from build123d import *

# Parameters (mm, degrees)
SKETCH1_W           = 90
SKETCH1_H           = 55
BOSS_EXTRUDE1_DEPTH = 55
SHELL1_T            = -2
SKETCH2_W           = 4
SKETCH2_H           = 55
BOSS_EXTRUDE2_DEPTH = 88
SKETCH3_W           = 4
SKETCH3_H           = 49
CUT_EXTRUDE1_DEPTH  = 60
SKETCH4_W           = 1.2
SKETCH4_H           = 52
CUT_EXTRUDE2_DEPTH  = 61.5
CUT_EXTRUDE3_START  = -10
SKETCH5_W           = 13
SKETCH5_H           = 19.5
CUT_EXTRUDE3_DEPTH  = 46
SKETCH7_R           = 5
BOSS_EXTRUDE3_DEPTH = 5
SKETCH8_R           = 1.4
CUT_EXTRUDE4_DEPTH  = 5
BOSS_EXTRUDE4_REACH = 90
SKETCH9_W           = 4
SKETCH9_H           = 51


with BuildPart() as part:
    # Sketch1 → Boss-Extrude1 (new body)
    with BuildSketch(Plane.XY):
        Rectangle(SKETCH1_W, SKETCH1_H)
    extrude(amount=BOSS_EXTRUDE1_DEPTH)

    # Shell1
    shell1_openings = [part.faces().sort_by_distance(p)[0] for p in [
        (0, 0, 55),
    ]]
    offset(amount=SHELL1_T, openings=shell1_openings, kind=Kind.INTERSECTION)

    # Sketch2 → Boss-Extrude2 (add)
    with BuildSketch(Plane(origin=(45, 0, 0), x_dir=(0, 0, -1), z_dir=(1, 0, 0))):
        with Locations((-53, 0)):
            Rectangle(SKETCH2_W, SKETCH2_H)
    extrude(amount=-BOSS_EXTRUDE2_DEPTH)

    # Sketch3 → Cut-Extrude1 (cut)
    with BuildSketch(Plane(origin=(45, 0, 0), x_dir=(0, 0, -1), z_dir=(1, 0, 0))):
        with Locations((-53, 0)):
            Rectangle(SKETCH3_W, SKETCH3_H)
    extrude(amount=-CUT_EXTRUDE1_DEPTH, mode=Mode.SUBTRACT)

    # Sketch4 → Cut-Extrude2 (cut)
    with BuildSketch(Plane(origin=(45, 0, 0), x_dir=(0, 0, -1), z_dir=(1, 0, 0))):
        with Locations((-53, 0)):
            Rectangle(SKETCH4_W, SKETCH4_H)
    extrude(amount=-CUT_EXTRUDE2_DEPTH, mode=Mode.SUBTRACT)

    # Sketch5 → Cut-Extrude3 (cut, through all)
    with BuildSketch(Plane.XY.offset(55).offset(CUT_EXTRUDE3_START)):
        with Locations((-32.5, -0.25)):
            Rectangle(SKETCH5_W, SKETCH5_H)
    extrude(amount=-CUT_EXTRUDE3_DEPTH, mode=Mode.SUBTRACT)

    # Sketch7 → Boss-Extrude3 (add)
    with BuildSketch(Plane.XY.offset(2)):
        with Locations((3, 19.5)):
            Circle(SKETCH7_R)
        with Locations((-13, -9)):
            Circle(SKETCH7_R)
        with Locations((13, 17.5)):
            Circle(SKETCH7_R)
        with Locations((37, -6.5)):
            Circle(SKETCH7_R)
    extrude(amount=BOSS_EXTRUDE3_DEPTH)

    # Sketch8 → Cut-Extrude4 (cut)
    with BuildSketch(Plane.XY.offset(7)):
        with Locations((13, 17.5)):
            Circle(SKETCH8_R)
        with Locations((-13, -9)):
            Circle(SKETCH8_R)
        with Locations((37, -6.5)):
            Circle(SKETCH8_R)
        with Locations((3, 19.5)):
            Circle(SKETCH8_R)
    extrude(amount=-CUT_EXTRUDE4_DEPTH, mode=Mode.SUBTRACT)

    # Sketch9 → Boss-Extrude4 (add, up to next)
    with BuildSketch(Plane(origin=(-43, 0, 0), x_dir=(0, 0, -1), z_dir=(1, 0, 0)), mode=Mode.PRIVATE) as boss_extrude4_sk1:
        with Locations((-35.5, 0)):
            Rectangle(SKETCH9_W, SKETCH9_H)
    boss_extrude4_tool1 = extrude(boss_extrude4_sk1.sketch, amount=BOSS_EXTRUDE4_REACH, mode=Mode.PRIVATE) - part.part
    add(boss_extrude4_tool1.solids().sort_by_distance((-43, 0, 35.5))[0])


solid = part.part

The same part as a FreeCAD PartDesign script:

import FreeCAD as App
import Part
import Sketcher

V = App.Vector


def faces_at(feature, points):
    """Names of the faces that lie closest to the given points."""
    faces = feature.Shape.Faces
    near = lambda p: min(range(len(faces)), key=lambda i: faces[i].distToShape(Part.Vertex(*p))[0])
    return sorted({f"Face{near(p) + 1}" for p in points})


def add_polygon(sketch, points):
    """Adds a closed chain of lines whose ends are joined by coincident constraints."""
    first, n = sketch.GeometryCount, len(points)
    for a, b in zip(points, points[1:] + points[:1]):
        sketch.addGeometry(Part.LineSegment(App.Vector(*a, 0), App.Vector(*b, 0)), False)
    for i in range(n):
        sketch.addConstraint(Sketcher.Constraint("Coincident", first + i, 2, first + (i + 1) % n, 1))

doc = App.newDocument("Part")
body = doc.addObject("PartDesign::Body", "Body")

# Sketch on XY plane
sketch1 = body.newObject("Sketcher::SketchObject", "Sketch")
sketch1.AttachmentSupport = (doc.getObject("XY_Plane"), [""])
sketch1.MapMode = "FlatFace"
add_polygon(sketch1, [(-45, 28), (-45, -28), (45, -28), (45, 28)])  # lines 0-3
sketch1.addConstraint(Sketcher.Constraint("Vertical", 0))
sketch1.addConstraint(Sketcher.Constraint("Horizontal", 1))
sketch1.addConstraint(Sketcher.Constraint("Vertical", 2))
sketch1.addConstraint(Sketcher.Constraint("Horizontal", 3))
sketch1.addConstraint(Sketcher.Constraint("Symmetric", 0, 2, 2, 2, -1, 1))
sketch1.addConstraint(Sketcher.Constraint("DistanceX", 1, 1, 1, 2, 90.0))
sketch1.addConstraint(Sketcher.Constraint("DistanceY", 0, 2, 0, 1, 55.0))
pad1 = body.newObject("PartDesign::Pad", "Pad")
pad1.Profile = sketch1
pad1.Length = 55
doc.recompute()

thickness = body.newObject("PartDesign::Thickness", "Thickness")
thickness.Base = (pad1, faces_at(pad1, [(0, 0, 55)]))
thickness.Value = 2
thickness.Reversed = True
thickness.Join = "Intersection"

# Sketch on YZ plane
sketch2 = body.newObject("Sketcher::SketchObject", "Sketch001")
sketch2.AttachmentSupport = (doc.getObject("YZ_Plane"), [""])
sketch2.MapMode = "FlatFace"
sketch2.AttachmentOffset = App.Placement(V(0, 0, 45), App.Rotation())
add_polygon(sketch2, [(27.5, 55), (-27.5, 55), (-27.5, 51), (27.5, 51)])  # lines 0-3
sketch2.addConstraint(Sketcher.Constraint("Horizontal", 0))
sketch2.addConstraint(Sketcher.Constraint("Vertical", 1))
sketch2.addConstraint(Sketcher.Constraint("Horizontal", 2))
sketch2.addConstraint(Sketcher.Constraint("Vertical", 3))
sketch2.addConstraint(Sketcher.Constraint("DistanceX", 0, 2, 0, 1, 55.0))
sketch2.addConstraint(Sketcher.Constraint("DistanceY", 1, 2, 1, 1, 4.0))
sketch2.addConstraint(Sketcher.Constraint("DistanceY", -1, 1, 0, 2, 55.0))
sketch2.addConstraint(Sketcher.Constraint("DistanceX", 0, 2, -1, 1, 27.5))
pad2 = body.newObject("PartDesign::Pad", "Pad001")
pad2.Profile = sketch2
pad2.Length = 88
pad2.Reversed = True

# Sketch on YZ plane
sketch3 = body.newObject("Sketcher::SketchObject", "Sketch002")
sketch3.AttachmentSupport = (doc.getObject("YZ_Plane"), [""])
sketch3.MapMode = "FlatFace"
sketch3.AttachmentOffset = App.Placement(V(0, 0, 45), App.Rotation())
add_polygon(sketch3, [(24.5, 55), (-24.5, 55), (-24.5, 51), (24.5, 51)])  # lines 0-3
sketch3.addConstraint(Sketcher.Constraint("Horizontal", 0))
sketch3.addConstraint(Sketcher.Constraint("Vertical", 1))
sketch3.addConstraint(Sketcher.Constraint("Horizontal", 2))
sketch3.addConstraint(Sketcher.Constraint("Vertical", 3))
sketch3.addConstraint(Sketcher.Constraint("DistanceX", 0, 2, 0, 1, 49.0))
sketch3.addConstraint(Sketcher.Constraint("DistanceY", 1, 2, 1, 1, 4.0))
sketch3.addConstraint(Sketcher.Constraint("DistanceY", -1, 1, 0, 2, 55.0))
sketch3.addConstraint(Sketcher.Constraint("DistanceX", 0, 2, -1, 1, 24.5))
pocket1 = body.newObject("PartDesign::Pocket", "Pocket")
pocket1.Profile = sketch3
pocket1.Length = 60

# Sketch on YZ plane
sketch4 = body.newObject("Sketcher::SketchObject", "Sketch003")
sketch4.AttachmentSupport = (doc.getObject("YZ_Plane"), [""])
sketch4.MapMode = "FlatFace"
sketch4.AttachmentOffset = App.Placement(V(0, 0, 45), App.Rotation())
add_polygon(sketch4, [(26, 53.6), (-26, 53.6), (-26, 52.4), (26, 52.4)])  # lines 0-3
sketch4.addConstraint(Sketcher.Constraint("Horizontal", 0))
sketch4.addConstraint(Sketcher.Constraint("Vertical", 1))
sketch4.addConstraint(Sketcher.Constraint("Horizontal", 2))
sketch4.addConstraint(Sketcher.Constraint("Vertical", 3))
sketch4.addConstraint(Sketcher.Constraint("DistanceX", 0, 2, 0, 1, 52.0))
sketch4.addConstraint(Sketcher.Constraint("DistanceY", 1, 2, 1, 1, 1.2))
sketch4.addConstraint(Sketcher.Constraint("DistanceX", 0, 2, -1, 1, 26.0))
sketch4.addConstraint(Sketcher.Constraint("DistanceY", -1, 1, 0, 2, 53.6))
pocket2 = body.newObject("PartDesign::Pocket", "Pocket001")
pocket2.Profile = sketch4
pocket2.Length = 61.5

# Sketch on XY plane
sketch5 = body.newObject("Sketcher::SketchObject", "Sketch004")
sketch5.AttachmentSupport = (doc.getObject("XY_Plane"), [""])
sketch5.MapMode = "FlatFace"
sketch5.AttachmentOffset = App.Placement(V(0, 0, 45), App.Rotation())
add_polygon(sketch5, [(-39, 10), (-39, -10), (-26, -10), (-26, 10)])  # lines 0-3
sketch5.addConstraint(Sketcher.Constraint("Vertical", 0))
sketch5.addConstraint(Sketcher.Constraint("Horizontal", 1))
sketch5.addConstraint(Sketcher.Constraint("Vertical", 2))
sketch5.addConstraint(Sketcher.Constraint("Horizontal", 3))
sketch5.addConstraint(Sketcher.Constraint("DistanceX", 1, 1, 1, 2, 13.0))
sketch5.addConstraint(Sketcher.Constraint("DistanceY", 0, 2, 0, 1, 19.5))
sketch5.addConstraint(Sketcher.Constraint("DistanceX", 0, 2, -1, 1, 39.0))
sketch5.addConstraint(Sketcher.Constraint("DistanceY", 0, 2, -1, 1, 10.0))
pocket3 = body.newObject("PartDesign::Pocket", "Pocket002")
pocket3.Profile = sketch5
pocket3.Type = "ThroughAll"

# Sketch on XY plane
sketch6 = body.newObject("Sketcher::SketchObject", "Sketch005")
sketch6.AttachmentSupport = (doc.getObject("XY_Plane"), [""])
sketch6.MapMode = "FlatFace"
sketch6.AttachmentOffset = App.Placement(V(0, 0, 2), App.Rotation())
sketch6.addGeometry(Part.Circle(V(3, 20, 0), V(0, 0, 1), 5), False)
sketch6.addGeometry(Part.Circle(V(-13, -9, 0), V(0, 0, 1), 5), False)
sketch6.addGeometry(Part.Circle(V(13, 18, 0), V(0, 0, 1), 5), False)
sketch6.addGeometry(Part.Circle(V(37, -6, 0), V(0, 0, 1), 5), False)
sketch6.addConstraint(Sketcher.Constraint("Equal", 0, 1))
sketch6.addConstraint(Sketcher.Constraint("Equal", 1, 2))
sketch6.addConstraint(Sketcher.Constraint("Equal", 2, 3))
sketch6.addConstraint(Sketcher.Constraint("Diameter", 0, 10.0))
sketch6.addConstraint(Sketcher.Constraint("DistanceX", -1, 1, 0, 3, 3.0))
sketch6.addConstraint(Sketcher.Constraint("DistanceX", 1, 3, -1, 1, 13.0))
sketch6.addConstraint(Sketcher.Constraint("DistanceY", 1, 3, -1, 1, 9.0))
sketch6.addConstraint(Sketcher.Constraint("DistanceX", -1, 1, 2, 3, 13.0))
sketch6.addConstraint(Sketcher.Constraint("DistanceX", -1, 1, 3, 3, 37.0))
sketch6.addConstraint(Sketcher.Constraint("DistanceY", 2, 3, 0, 3, 2.0))
sketch6.addConstraint(Sketcher.Constraint("DistanceY", 3, 3, 2, 3, 24.0))
sketch6.addConstraint(Sketcher.Constraint("DistanceY", -1, 1, 0, 3, 19.5))
pad3 = body.newObject("PartDesign::Pad", "Pad002")
pad3.Profile = sketch6
pad3.Length = 5

# Sketch on XY plane
sketch7 = body.newObject("Sketcher::SketchObject", "Sketch006")
sketch7.AttachmentSupport = (doc.getObject("XY_Plane"), [""])
sketch7.MapMode = "FlatFace"
sketch7.AttachmentOffset = App.Placement(V(0, 0, 7), App.Rotation())
sketch7.addGeometry(Part.Circle(V(13, 17.5, 0), V(0, 0, 1), 1.4), False)
sketch7.addGeometry(Part.Circle(V(-13, -9, 0), V(0, 0, 1), 1.4), False)
sketch7.addGeometry(Part.Circle(V(37, -6.5, 0), V(0, 0, 1), 1.4), False)
sketch7.addGeometry(Part.Circle(V(3, 19.5, 0), V(0, 0, 1), 1.4), False)
sketch7.addConstraint(Sketcher.Constraint("Equal", 0, 1))
sketch7.addConstraint(Sketcher.Constraint("Equal", 1, 2))
sketch7.addConstraint(Sketcher.Constraint("Equal", 2, 3))
sketch7.addConstraint(Sketcher.Constraint("Diameter", 0, 2.8))
sketch7.addConstraint(Sketcher.Constraint("DistanceX", -1, 1, 0, 3, 13.0))
sketch7.addConstraint(Sketcher.Constraint("DistanceX", 1, 3, -1, 1, 13.0))
sketch7.addConstraint(Sketcher.Constraint("DistanceY", 1, 3, -1, 1, 9.0))
sketch7.addConstraint(Sketcher.Constraint("DistanceX", -1, 1, 2, 3, 37.0))
sketch7.addConstraint(Sketcher.Constraint("DistanceX", -1, 1, 3, 3, 3.0))
sketch7.addConstraint(Sketcher.Constraint("DistanceY", 2, 3, 0, 3, 24.0))
sketch7.addConstraint(Sketcher.Constraint("DistanceY", 0, 3, 3, 3, 2.0))
sketch7.addConstraint(Sketcher.Constraint("DistanceY", -1, 1, 0, 3, 17.5))
pocket4 = body.newObject("PartDesign::Pocket", "Pocket003")
pocket4.Profile = sketch7
pocket4.Length = 5

# Sketch on YZ plane
sketch8 = body.newObject("Sketcher::SketchObject", "Sketch007")
sketch8.AttachmentSupport = (doc.getObject("YZ_Plane"), [""])
sketch8.MapMode = "FlatFace"
sketch8.AttachmentOffset = App.Placement(V(0, 0, -43), App.Rotation())
add_polygon(sketch8, [(25.5, 37.5), (-25.5, 37.5), (-25.5, 33.5), (25.5, 33.5)])  # lines 0-3
sketch8.addConstraint(Sketcher.Constraint("Horizontal", 0))
sketch8.addConstraint(Sketcher.Constraint("Vertical", 1))
sketch8.addConstraint(Sketcher.Constraint("Horizontal", 2))
sketch8.addConstraint(Sketcher.Constraint("Vertical", 3))
sketch8.addConstraint(Sketcher.Constraint("DistanceX", 0, 2, 0, 1, 51.0))
sketch8.addConstraint(Sketcher.Constraint("DistanceY", 1, 2, 1, 1, 4.0))
sketch8.addConstraint(Sketcher.Constraint("DistanceX", 0, 2, -1, 1, 25.5))
sketch8.addConstraint(Sketcher.Constraint("DistanceY", -1, 1, 0, 2, 37.5))
pad4 = body.newObject("PartDesign::Pad", "Pad003")
pad4.Profile = sketch8
pad4.Type = "UpToFirst"

doc.recompute()
